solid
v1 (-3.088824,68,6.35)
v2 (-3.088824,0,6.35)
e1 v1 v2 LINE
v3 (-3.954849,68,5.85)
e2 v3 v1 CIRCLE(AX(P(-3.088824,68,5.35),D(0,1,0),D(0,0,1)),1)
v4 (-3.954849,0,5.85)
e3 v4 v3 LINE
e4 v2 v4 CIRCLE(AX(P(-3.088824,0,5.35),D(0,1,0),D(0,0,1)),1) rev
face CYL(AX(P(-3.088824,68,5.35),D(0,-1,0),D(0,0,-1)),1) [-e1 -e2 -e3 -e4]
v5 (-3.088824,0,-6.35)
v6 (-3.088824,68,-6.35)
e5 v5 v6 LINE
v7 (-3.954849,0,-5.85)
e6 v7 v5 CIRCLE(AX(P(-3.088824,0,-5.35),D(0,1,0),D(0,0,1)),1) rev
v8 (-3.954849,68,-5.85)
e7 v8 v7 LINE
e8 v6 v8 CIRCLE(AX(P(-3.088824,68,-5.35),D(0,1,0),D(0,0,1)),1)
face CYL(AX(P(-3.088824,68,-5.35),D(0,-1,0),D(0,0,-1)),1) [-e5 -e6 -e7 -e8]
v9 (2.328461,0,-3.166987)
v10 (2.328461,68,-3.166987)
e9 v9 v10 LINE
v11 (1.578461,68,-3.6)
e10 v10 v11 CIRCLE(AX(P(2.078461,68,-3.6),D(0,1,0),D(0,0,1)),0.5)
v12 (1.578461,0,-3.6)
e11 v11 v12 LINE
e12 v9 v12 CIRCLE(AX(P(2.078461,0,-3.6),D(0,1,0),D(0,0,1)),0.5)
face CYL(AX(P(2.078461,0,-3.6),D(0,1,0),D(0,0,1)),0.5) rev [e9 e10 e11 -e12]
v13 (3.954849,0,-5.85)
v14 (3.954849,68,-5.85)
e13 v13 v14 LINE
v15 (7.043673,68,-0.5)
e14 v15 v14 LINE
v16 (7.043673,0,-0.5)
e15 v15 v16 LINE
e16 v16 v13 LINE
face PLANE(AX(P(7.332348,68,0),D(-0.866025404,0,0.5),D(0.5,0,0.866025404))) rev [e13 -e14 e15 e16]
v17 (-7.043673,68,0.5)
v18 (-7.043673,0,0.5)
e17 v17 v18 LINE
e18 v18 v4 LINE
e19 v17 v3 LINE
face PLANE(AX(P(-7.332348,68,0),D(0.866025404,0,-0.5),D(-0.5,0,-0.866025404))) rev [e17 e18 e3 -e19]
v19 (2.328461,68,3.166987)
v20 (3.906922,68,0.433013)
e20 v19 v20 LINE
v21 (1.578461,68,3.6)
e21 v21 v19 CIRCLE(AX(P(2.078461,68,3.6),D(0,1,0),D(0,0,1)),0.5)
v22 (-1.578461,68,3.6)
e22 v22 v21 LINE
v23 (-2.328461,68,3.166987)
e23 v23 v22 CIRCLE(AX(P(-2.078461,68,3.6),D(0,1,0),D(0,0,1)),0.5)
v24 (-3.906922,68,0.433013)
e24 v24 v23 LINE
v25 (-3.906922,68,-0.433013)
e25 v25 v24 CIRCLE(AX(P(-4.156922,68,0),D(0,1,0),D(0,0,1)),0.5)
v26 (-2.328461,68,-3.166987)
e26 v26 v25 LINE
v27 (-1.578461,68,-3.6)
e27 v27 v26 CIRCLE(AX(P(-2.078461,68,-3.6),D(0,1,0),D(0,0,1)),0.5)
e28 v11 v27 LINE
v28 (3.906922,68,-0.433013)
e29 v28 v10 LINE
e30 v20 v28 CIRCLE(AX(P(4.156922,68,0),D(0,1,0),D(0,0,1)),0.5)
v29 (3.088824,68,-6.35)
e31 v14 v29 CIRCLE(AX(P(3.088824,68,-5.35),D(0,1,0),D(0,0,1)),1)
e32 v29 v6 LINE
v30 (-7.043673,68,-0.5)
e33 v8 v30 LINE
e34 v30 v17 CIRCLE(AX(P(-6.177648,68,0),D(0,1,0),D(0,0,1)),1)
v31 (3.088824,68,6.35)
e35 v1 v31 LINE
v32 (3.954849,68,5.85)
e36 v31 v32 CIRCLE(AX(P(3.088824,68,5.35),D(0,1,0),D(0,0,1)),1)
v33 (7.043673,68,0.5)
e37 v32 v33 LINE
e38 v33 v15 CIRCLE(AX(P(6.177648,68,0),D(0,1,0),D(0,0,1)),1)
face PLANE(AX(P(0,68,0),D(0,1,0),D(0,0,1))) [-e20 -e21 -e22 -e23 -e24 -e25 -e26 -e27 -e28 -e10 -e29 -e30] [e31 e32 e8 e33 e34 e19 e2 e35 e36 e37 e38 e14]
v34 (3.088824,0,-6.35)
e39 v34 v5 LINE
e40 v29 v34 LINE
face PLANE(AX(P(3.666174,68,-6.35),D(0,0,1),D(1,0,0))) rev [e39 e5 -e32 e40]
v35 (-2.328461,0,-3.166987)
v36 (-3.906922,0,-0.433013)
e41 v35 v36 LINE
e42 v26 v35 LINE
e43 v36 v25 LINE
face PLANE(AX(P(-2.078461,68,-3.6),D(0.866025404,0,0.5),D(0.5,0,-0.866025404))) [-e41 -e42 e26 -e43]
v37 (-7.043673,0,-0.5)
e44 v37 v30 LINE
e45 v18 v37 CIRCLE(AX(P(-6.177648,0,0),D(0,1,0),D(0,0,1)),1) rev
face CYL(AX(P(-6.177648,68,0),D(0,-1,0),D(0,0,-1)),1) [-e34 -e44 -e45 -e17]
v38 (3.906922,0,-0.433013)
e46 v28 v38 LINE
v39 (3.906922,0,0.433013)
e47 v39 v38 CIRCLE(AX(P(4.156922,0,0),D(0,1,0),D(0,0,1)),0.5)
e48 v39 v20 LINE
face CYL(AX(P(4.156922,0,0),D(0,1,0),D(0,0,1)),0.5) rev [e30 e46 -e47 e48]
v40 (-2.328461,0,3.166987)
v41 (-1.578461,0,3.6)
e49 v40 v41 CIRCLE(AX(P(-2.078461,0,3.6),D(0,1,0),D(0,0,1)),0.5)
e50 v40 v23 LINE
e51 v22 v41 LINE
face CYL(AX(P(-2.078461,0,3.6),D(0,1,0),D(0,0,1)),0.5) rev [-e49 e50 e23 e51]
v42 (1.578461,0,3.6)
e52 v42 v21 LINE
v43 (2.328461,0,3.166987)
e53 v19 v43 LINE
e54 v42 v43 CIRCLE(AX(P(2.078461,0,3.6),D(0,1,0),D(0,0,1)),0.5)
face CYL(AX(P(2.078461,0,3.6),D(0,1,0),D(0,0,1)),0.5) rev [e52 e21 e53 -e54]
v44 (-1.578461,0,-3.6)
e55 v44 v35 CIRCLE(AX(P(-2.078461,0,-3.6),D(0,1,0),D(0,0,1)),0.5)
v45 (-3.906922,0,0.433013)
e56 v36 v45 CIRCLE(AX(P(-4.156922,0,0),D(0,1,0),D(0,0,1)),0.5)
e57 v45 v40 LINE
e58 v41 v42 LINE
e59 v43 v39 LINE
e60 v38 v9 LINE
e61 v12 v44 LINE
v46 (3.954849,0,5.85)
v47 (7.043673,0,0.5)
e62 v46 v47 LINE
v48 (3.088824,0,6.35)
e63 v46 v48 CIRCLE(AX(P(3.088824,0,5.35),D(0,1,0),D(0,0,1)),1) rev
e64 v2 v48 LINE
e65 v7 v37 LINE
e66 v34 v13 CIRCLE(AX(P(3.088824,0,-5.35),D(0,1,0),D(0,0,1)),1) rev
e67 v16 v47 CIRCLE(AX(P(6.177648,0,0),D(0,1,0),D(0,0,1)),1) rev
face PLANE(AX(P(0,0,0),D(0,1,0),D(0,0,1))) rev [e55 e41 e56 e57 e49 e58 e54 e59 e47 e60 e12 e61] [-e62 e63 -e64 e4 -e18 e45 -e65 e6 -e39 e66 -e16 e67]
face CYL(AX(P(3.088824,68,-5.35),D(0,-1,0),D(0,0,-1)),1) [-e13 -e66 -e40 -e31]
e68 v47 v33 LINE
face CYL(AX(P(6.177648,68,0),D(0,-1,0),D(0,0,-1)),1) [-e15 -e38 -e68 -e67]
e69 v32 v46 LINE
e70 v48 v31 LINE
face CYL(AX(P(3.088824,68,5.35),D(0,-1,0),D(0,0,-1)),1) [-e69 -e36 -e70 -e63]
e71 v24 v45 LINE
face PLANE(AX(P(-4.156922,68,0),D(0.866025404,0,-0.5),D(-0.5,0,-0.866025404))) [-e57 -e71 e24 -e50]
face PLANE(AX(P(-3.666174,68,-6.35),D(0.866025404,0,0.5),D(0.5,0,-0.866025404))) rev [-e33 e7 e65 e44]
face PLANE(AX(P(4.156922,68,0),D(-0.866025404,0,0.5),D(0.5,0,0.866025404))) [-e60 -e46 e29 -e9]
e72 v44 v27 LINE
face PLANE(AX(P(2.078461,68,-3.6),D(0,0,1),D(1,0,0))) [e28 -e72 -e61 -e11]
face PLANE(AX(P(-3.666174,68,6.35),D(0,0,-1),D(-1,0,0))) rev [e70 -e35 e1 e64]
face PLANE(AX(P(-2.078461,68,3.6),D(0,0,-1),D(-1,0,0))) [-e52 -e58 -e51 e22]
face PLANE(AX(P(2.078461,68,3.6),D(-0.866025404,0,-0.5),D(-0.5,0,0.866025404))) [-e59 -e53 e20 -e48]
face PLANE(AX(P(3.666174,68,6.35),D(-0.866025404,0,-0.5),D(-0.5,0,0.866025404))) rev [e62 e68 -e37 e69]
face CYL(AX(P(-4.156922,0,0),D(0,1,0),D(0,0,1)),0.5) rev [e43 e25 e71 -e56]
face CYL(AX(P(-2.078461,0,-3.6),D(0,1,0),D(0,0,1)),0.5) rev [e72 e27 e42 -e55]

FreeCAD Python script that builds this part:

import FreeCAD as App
import Part
import Sketcher

V = App.Vector
Q = App.Units.Quantity


def edges_at(feature, points):
    """Names of the edges that pass closest to the given points."""
    edges = feature.Shape.Edges
    near = lambda p: min(range(len(edges)), key=lambda i: edges[i].distToShape(Part.Vertex(*p))[0])
    return sorted({f"Edge{near(p) + 1}" for p in points})


def add_polygon(sketch, points):
    """Adds a closed chain of lines whose ends are joined by coincident constraints."""
    first, n = sketch.GeometryCount, len(points)
    for a, b in zip(points, points[1:] + points[:1]):
        sketch.addGeometry(Part.LineSegment(App.Vector(*a, 0), App.Vector(*b, 0)), False)
    for i in range(n):
        sketch.addConstraint(Sketcher.Constraint("Coincident", first + i, 2, first + (i + 1) % n, 1))

doc = App.newDocument("Part")
body = doc.addObject("PartDesign::Body", "Body")

# Sketch on XZ plane
sketch1 = body.newObject("Sketcher::SketchObject", "Sketch")
sketch1.AttachmentSupport = (doc.getObject("XZ_Plane"), [""])
sketch1.MapMode = "FlatFace"
add_polygon(sketch1, [(3.7, -6.3), (-3.7, -6.3), (-7.3, 0), (-3.7, 6.3), (3.7, 6.3), (7.3, 0)])  # lines 0-5
add_polygon(sketch1, [(-2.1, -3.6), (2.1, -3.6), (4.2, 0), (2.1, 3.6), (-2.1, 3.6), (-4.2, 0)])  # lines 6-11
sketch1.addConstraint([
    Sketcher.Constraint("Horizontal", 0),
    Sketcher.Constraint("Horizontal", 3),
    Sketcher.Constraint("Horizontal", 6),
    Sketcher.Constraint("Horizontal", 9),
    Sketcher.Constraint("Symmetric", 0, 2, 3, 2, -1, 1),
    Sketcher.Constraint("Symmetric", 1, 2, 4, 2, -1, 1),
    Sketcher.Constraint("Symmetric", 6, 2, 9, 2, -1, 1),
    Sketcher.Constraint("Symmetric", 7, 2, 10, 2, -1, 1),
    Sketcher.Constraint("PointOnObject", 1, 2, -1),
    Sketcher.Constraint("PointOnObject", 7, 2, -1),
    Sketcher.Constraint("Parallel", 2, 5),
    Sketcher.Constraint("Parallel", 5, 7),
    Sketcher.Constraint("Parallel", 4, 8),
    Sketcher.Constraint("Parallel", 8, 11),
    Sketcher.Constraint("Vertical", 0, 2, 2, 2),
    Sketcher.Constraint("Angle", 1, Q("120 deg")),
    Sketcher.Constraint("DistanceY", 6, 2, -1, 1, Q("3.6 mm")),
    Sketcher.Constraint("DistanceY", 0, 2, 2, 2, Q("12.7 mm")),
    Sketcher.Constraint("DistanceX", 0, 2, 0, 1, Q("7.332348 mm")),
    Sketcher.Constraint("DistanceX", 6, 1, 6, 2, Q("4.156922 mm")),
])
pad1 = body.newObject("PartDesign::Pad", "Pad")
pad1.Profile = sketch1
pad1.Length = 68
pad1.Reversed = True

# Sketch on XZ plane
sketch2 = body.newObject("Sketcher::SketchObject", "Sketch001")
sketch2.AttachmentSupport = (doc.getObject("XZ_Plane"), [""])
sketch2.MapMode = "FlatFace"
sketch2.AttachmentOffset = App.Placement(V(0, 0, -68), App.Rotation())
sketch2.addGeometry([
    Part.Circle(V(-2.1, -3.6, 0), V(0, 0, 1), 0.5),  # 0
    Part.Circle(V(2.1, -3.6, 0), V(0, 0, 1), 0.5),  # 1
    Part.Circle(V(4.2, 0, 0), V(0, 0, 1), 0.5),  # 2
    Part.Circle(V(2.1, 3.6, 0), V(0, 0, 1), 0.5),  # 3
    Part.Circle(V(-2.1, 3.6, 0), V(0, 0, 1), 0.5),  # 4
    Part.Circle(V(-4.2, 0, 0), V(0, 0, 1), 0.5),  # 5
], False)
sketch2.addConstraint([
    Sketcher.Constraint("Equal", 0, 1),
    Sketcher.Constraint("Equal", 1, 2),
    Sketcher.Constraint("Equal", 2, 3),
    Sketcher.Constraint("Equal", 3, 4),
    Sketcher.Constraint("Equal", 4, 5),
    Sketcher.Constraint("Symmetric", 0, 3, 3, 3, -1, 1),
    Sketcher.Constraint("Symmetric", 1, 3, 4, 3, -1, 1),
    Sketcher.Constraint("Symmetric", 2, 3, 5, 3, -1, 1),
    Sketcher.Constraint("Symmetric", 0, 3, 1, 3, -2),
    Sketcher.Constraint("PointOnObject", 2, 3, -1),
    Sketcher.Constraint("Diameter", 0, Q("1 mm")),
    Sketcher.Constraint("DistanceY", 0, 3, -1, 1, Q("3.6 mm")),
    Sketcher.Constraint("DistanceX", 0, 3, -1, 1, Q("2.078461 mm")),
    Sketcher.Constraint("DistanceX", -1, 1, 2, 3, Q("4.156922 mm")),
])
pocket1 = body.newObject("PartDesign::Pocket", "Pocket")
pocket1.Profile = sketch2
pocket1.Type = "ThroughAll"
pocket1.Reversed = True
doc.recompute()

fillet = body.newObject("PartDesign::Fillet", "Fillet")
fillet.Base = (pocket1, edges_at(pocket1, [
    (7.332, 34, 0),
    (3.666, 34, 6.35),
    (-3.666, 34, 6.35),
    (-7.332, 34, 0),
    (-3.666, 34, -6.35),
    (3.666, 34, -6.35),
]))
fillet.Radius = 1

doc.recompute()
